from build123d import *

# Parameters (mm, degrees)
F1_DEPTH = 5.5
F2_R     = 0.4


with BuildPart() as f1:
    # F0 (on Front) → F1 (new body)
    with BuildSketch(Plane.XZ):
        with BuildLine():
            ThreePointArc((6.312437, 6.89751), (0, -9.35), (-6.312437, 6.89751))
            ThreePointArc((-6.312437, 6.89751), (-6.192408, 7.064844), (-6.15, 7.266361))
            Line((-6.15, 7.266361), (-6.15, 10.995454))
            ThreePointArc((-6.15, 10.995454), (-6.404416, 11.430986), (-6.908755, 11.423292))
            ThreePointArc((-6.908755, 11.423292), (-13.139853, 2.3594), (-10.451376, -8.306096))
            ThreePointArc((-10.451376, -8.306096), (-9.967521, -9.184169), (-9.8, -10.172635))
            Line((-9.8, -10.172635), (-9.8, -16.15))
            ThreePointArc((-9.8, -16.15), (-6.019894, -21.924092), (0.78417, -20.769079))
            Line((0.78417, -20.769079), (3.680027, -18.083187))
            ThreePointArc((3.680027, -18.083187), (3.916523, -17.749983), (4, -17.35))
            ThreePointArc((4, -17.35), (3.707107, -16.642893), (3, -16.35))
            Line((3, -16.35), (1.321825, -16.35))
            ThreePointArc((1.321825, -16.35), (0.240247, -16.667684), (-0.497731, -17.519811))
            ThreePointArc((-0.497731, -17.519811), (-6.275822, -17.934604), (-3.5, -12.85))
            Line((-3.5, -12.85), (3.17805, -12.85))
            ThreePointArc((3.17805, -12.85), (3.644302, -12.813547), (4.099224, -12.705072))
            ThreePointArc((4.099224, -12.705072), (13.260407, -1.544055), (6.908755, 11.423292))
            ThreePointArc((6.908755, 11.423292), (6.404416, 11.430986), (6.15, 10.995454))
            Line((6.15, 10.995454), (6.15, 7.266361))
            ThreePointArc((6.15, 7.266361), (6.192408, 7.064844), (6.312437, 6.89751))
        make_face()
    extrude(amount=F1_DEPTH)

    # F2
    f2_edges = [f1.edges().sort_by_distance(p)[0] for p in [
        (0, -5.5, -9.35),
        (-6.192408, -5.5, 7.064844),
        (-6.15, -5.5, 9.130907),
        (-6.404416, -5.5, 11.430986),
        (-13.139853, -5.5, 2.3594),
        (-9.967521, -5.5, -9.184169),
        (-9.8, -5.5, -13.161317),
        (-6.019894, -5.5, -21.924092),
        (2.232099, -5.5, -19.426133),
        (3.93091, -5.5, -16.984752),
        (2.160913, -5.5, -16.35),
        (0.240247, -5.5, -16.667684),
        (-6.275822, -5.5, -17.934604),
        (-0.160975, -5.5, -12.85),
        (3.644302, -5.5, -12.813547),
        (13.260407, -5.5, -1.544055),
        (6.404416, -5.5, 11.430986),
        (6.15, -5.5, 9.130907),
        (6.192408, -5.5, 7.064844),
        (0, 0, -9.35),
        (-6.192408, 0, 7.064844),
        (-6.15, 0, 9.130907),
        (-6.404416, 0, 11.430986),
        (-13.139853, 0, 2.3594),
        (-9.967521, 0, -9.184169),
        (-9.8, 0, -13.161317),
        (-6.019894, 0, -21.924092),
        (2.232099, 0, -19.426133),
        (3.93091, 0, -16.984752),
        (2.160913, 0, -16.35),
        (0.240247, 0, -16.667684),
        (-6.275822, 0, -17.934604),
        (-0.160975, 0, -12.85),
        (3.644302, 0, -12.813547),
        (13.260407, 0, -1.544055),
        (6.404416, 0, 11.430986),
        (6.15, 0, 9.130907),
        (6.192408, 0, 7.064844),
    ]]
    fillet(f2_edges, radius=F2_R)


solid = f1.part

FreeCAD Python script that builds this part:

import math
import FreeCAD as App
import Part
import Sketcher
Q = App.Units.Quantity


def edges_at(feature, points):
    """Names of the edges that pass closest to the given points."""
    edges = feature.Shape.Edges
    near = lambda p: min(range(len(edges)), key=lambda i: edges[i].distToShape(Part.Vertex(*p))[0])
    return sorted({f"Edge{near(p) + 1}" for p in points})

doc = App.newDocument("Part")
body = doc.addObject("PartDesign::Body", "Body")

# Sketch on XZ plane
sketch1 = body.newObject("Sketcher::SketchObject", "Sketch")
sketch1.AttachmentSupport = (doc.getObject("XZ_Plane"), [""])
sketch1.MapMode = "FlatFace"
sketch1.addGeometry(Part.ArcOfCircle(Part.Circle(App.Vector(0, 0, 0), App.Vector(0, 0, 1), 9.35), math.radians(132.464009), math.radians(407.535991)), False)
sketch1.addGeometry(Part.ArcOfCircle(Part.Circle(App.Vector(-6.650004, 7.266363, 0), App.Vector(0, 0, 1), 0.500004), math.radians(-47.535862), math.radians(-0.000228)), False)
sketch1.addGeometry(Part.LineSegment(App.Vector(-6.15, 7.266361, 0), App.Vector(-6.15, 10.995454, 0)), False)
sketch1.addGeometry(Part.ArcOfCircle(Part.Circle(App.Vector(-6.65, 10.995454, 0), App.Vector(0, 0, 1), 0.5), math.radians(0.000041), math.radians(121.1654)), False)
sketch1.addGeometry(Part.ArcOfCircle(Part.Circle(App.Vector(-0.000001, 0, 0), App.Vector(0, 0, 1), 13.349999), math.radians(121.165354), math.radians(218.475472)), False)
sketch1.addGeometry(Part.ArcOfCircle(Part.Circle(App.Vector(-12.799997, -10.172633, 0), App.Vector(0, 0, 1), 2.999997), math.radians(-0.000031), math.radians(38.475482)), False)
sketch1.addGeometry(Part.LineSegment(App.Vector(-9.8, -10.172635, 0), App.Vector(-9.8, -16.15, 0)), False)
sketch1.addGeometry(Part.ArcOfCircle(Part.Circle(App.Vector(-3.5, -16.15, 0), App.Vector(0, 0, 1), 6.3), math.radians(179.999997), math.radians(312.845752)), False)
sketch1.addGeometry(Part.LineSegment(App.Vector(0.78417, -20.769079, 0), App.Vector(3.680027, -18.083187, 0)), False)
sketch1.addGeometry(Part.ArcOfCircle(Part.Circle(App.Vector(3.000005, -17.350002, 0), App.Vector(0, 0, 1), 0.999995), math.radians(-47.154366), math.radians(0.000115)), False)
sketch1.addGeometry(Part.ArcOfCircle(Part.Circle(App.Vector(3.000001, -17.349999, 0), App.Vector(0, 0, 1), 0.999999), math.radians(-0.000043), math.radians(90.000043)), False)
sketch1.addGeometry(Part.LineSegment(App.Vector(3, -16.35, 0), App.Vector(1.321825, -16.35, 0)), False)
sketch1.addGeometry(Part.ArcOfCircle(Part.Circle(App.Vector(1.321826, -18.350001, 0), App.Vector(0, 0, 1), 2.000001), math.radians(90.000032), math.radians(155.474717)), False)
sketch1.addGeometry(Part.ArcOfCircle(Part.Circle(App.Vector(-3.5, -16.15, 0), App.Vector(0, 0, 1), 3.3), math.radians(90.000003), math.radians(335.474749)), False)
sketch1.addGeometry(Part.LineSegment(App.Vector(-3.5, -12.85, 0), App.Vector(3.17805, -12.85, 0)), False)
sketch1.addGeometry(Part.ArcOfCircle(Part.Circle(App.Vector(3.178055, -9.85004, 0), App.Vector(0, 0, 1), 2.99996), math.radians(-90.000095), math.radians(-72.117834)), False)
sketch1.addGeometry(Part.ArcOfCircle(Part.Circle(App.Vector(0, 0, 0), App.Vector(0, 0, 1), 13.35), math.radians(-72.117981), math.radians(58.834644)), False)
sketch1.addGeometry(Part.ArcOfCircle(Part.Circle(App.Vector(6.65, 10.995454, 0), App.Vector(0, 0, 1), 0.5), math.radians(58.8346), math.radians(179.999959)), False)
sketch1.addGeometry(Part.LineSegment(App.Vector(6.15, 10.995454, 0), App.Vector(6.15, 7.266361, 0)), False)
sketch1.addGeometry(Part.ArcOfCircle(Part.Circle(App.Vector(6.650004, 7.266363, 0), App.Vector(0, 0, 1), 0.500004), math.radians(-179.999772), math.radians(-132.464138)), False)
sketch1.addConstraint(Sketcher.Constraint("Coincident", 0, 1, 1, 1))
sketch1.addConstraint(Sketcher.Constraint("Coincident", 1, 2, 2, 1))
sketch1.addConstraint(Sketcher.Constraint("Tangent", 2, 2, 3, 1))
sketch1.addConstraint(Sketcher.Constraint("Tangent", 3, 2, 4, 1))
sketch1.addConstraint(Sketcher.Constraint("Tangent", 4, 2, 5, 2))
sketch1.addConstraint(Sketcher.Constraint("Tangent", 5, 1, 6, 1))
sketch1.addConstraint(Sketcher.Constraint("Tangent", 6, 2, 7, 1))
sketch1.addConstraint(Sketcher.Constraint("Tangent", 7, 2, 8, 1))
sketch1.addConstraint(Sketcher.Constraint("Coincident", 8, 2, 9, 1))
sketch1.addConstraint(Sketcher.Constraint("Coincident", 9, 2, 10, 1))
sketch1.addConstraint(Sketcher.Constraint("Tangent", 10, 2, 11, 1))
sketch1.addConstraint(Sketcher.Constraint("Tangent", 11, 2, 12, 1))
sketch1.addConstraint(Sketcher.Constraint("Tangent", 12, 2, 13, 2))
sketch1.addConstraint(Sketcher.Constraint("Tangent", 13, 1, 14, 1))
sketch1.addConstraint(Sketcher.Constraint("Tangent", 14, 2, 15, 1))
sketch1.addConstraint(Sketcher.Constraint("Coincident", 15, 2, 16, 1))
sketch1.addConstraint(Sketcher.Constraint("Tangent", 16, 2, 17, 1))
sketch1.addConstraint(Sketcher.Constraint("Tangent", 17, 2, 18, 1))
sketch1.addConstraint(Sketcher.Constraint("Coincident", 18, 2, 19, 1))
sketch1.addConstraint(Sketcher.Constraint("Coincident", 19, 2, 0, 2))
sketch1.addConstraint(Sketcher.Constraint("Vertical", 2))
sketch1.addConstraint(Sketcher.Constraint("Vertical", 6))
sketch1.addConstraint(Sketcher.Constraint("Horizontal", 11))
sketch1.addConstraint(Sketcher.Constraint("Horizontal", 14))
sketch1.addConstraint(Sketcher.Constraint("Vertical", 18))
sketch1.addConstraint(Sketcher.Constraint("Coincident", 0, 3, -1, 1))
sketch1.addConstraint(Sketcher.Constraint("Coincident", 4, 3, -1, 1))
sketch1.addConstraint(Sketcher.Constraint("Coincident", 16, 3, -1, 1))
sketch1.addConstraint(Sketcher.Constraint("Coincident", 10, 3, 9, 3))
sketch1.addConstraint(Sketcher.Constraint("Coincident", 13, 3, 7, 3))
sketch1.addConstraint(Sketcher.Constraint("Equal", 4, 16))
sketch1.addConstraint(Sketcher.Constraint("Equal", 3, 17))
sketch1.addConstraint(Sketcher.Constraint("Equal", 1, 19))
sketch1.addConstraint(Sketcher.Constraint("Symmetric", 1, 2, 18, 2, -2))
sketch1.addConstraint(Sketcher.Constraint("Horizontal", 19, 3, 1, 2))
sketch1.addConstraint(Sketcher.Constraint("Horizontal", 10, 3, 9, 2))
sketch1.addConstraint(Sketcher.Constraint("Horizontal", 0, 1, 19, 2))
sketch1.addConstraint(Sketcher.Constraint("Radius", 10, Q("0.999999 mm")))
sketch1.addConstraint(Sketcher.Constraint("Radius", 12, Q("2.000001 mm")))
sketch1.addConstraint(Sketcher.Constraint("Radius", 3, Q("0.5 mm")))
sketch1.addConstraint(Sketcher.Constraint("Radius", 7, Q("6.3 mm")))
sketch1.addConstraint(Sketcher.Constraint("Radius", 13, Q("3.3 mm")))
sketch1.addConstraint(Sketcher.Constraint("Radius", 0, Q("9.35 mm")))
sketch1.addConstraint(Sketcher.Constraint("Radius", 4, Q("13.349999 mm")))
sketch1.addConstraint(Sketcher.Constraint("DistanceX", -1, 1, 10, 3, Q("3.000001 mm")))
sketch1.addConstraint(Sketcher.Constraint("DistanceX", 7, 3, -1, 1, Q("3.5 mm")))
sketch1.addConstraint(Sketcher.Constraint("DistanceY", 9, 3, 7, 3, Q("1.200002 mm")))
sketch1.addConstraint(Sketcher.Constraint("DistanceX", 5, 3, 9, 3, Q("15.800002 mm")))
sketch1.addConstraint(Sketcher.Constraint("DistanceX", 3, 3, 17, 3, Q("13.3 mm")))
sketch1.addConstraint(Sketcher.Constraint("DistanceY", 7, 3, -1, 1, Q("16.15 mm")))
sketch1.addConstraint(Sketcher.Constraint("Radius", 15, Q("2.99996 mm")))
sketch1.addConstraint(Sketcher.Constraint("Radius", 1, Q("0.500004 mm")))
sketch1.addConstraint(Sketcher.Constraint("DistanceX", 12, 3, 8, 2, Q("2.358201 mm")))
sketch1.addConstraint(Sketcher.Constraint("DistanceX", 11, 2, 15, 2, Q("2.777399 mm")))
sketch1.addConstraint(Sketcher.Constraint("DistanceY", -1, 1, 0, 1, Q("6.89751 mm")))
pad1 = body.newObject("PartDesign::Pad", "Pad")
pad1.Profile = sketch1
pad1.Length = 5.5
doc.recompute()

fillet = body.newObject("PartDesign::Fillet", "Fillet")
fillet.Base = (pad1, edges_at(pad1, [
    (0, -5.5, -9.35),
    (-6.192, -5.5, 7.065),
    (-6.15, -5.5, 9.131),
    (-6.404, -5.5, 11.431),
    (-13.14, -5.5, 2.359),
    (-9.968, -5.5, -9.184),
    (-9.8, -5.5, -13.161),
    (-6.02, -5.5, -21.924),
    (2.232, -5.5, -19.426),
    (3.707, -5.5, -16.643),
    (2.161, -5.5, -16.35),
    (0.24, -5.5, -16.668),
    (-6.276, -5.5, -17.935),
    (-0.161, -5.5, -12.85),
    (3.644, -5.5, -12.814),
    (13.26, -5.5, -1.544),
    (6.404, -5.5, 11.431),
    (6.15, -5.5, 9.131),
    (6.192, -5.5, 7.065),
    (0, 0, -9.35),
    (-6.192, 0, 7.065),
    (-6.15, 0, 9.131),
    (-6.404, 0, 11.431),
    (-13.14, 0, 2.359),
    (-9.968, 0, -9.184),
    (-9.8, 0, -13.161),
    (-6.02, 0, -21.924),
    (2.232, 0, -19.426),
    (3.707, 0, -16.643),
    (2.161, 0, -16.35),
    (0.24, 0, -16.668),
    (-6.276, 0, -17.935),
    (-0.161, 0, -12.85),
    (3.644, 0, -12.814),
    (13.26, 0, -1.544),
    (6.404, 0, 11.431),
    (6.15, 0, 9.131),
    (6.192, 0, 7.065),
]))
fillet.Radius = 0.4

doc.recompute()
